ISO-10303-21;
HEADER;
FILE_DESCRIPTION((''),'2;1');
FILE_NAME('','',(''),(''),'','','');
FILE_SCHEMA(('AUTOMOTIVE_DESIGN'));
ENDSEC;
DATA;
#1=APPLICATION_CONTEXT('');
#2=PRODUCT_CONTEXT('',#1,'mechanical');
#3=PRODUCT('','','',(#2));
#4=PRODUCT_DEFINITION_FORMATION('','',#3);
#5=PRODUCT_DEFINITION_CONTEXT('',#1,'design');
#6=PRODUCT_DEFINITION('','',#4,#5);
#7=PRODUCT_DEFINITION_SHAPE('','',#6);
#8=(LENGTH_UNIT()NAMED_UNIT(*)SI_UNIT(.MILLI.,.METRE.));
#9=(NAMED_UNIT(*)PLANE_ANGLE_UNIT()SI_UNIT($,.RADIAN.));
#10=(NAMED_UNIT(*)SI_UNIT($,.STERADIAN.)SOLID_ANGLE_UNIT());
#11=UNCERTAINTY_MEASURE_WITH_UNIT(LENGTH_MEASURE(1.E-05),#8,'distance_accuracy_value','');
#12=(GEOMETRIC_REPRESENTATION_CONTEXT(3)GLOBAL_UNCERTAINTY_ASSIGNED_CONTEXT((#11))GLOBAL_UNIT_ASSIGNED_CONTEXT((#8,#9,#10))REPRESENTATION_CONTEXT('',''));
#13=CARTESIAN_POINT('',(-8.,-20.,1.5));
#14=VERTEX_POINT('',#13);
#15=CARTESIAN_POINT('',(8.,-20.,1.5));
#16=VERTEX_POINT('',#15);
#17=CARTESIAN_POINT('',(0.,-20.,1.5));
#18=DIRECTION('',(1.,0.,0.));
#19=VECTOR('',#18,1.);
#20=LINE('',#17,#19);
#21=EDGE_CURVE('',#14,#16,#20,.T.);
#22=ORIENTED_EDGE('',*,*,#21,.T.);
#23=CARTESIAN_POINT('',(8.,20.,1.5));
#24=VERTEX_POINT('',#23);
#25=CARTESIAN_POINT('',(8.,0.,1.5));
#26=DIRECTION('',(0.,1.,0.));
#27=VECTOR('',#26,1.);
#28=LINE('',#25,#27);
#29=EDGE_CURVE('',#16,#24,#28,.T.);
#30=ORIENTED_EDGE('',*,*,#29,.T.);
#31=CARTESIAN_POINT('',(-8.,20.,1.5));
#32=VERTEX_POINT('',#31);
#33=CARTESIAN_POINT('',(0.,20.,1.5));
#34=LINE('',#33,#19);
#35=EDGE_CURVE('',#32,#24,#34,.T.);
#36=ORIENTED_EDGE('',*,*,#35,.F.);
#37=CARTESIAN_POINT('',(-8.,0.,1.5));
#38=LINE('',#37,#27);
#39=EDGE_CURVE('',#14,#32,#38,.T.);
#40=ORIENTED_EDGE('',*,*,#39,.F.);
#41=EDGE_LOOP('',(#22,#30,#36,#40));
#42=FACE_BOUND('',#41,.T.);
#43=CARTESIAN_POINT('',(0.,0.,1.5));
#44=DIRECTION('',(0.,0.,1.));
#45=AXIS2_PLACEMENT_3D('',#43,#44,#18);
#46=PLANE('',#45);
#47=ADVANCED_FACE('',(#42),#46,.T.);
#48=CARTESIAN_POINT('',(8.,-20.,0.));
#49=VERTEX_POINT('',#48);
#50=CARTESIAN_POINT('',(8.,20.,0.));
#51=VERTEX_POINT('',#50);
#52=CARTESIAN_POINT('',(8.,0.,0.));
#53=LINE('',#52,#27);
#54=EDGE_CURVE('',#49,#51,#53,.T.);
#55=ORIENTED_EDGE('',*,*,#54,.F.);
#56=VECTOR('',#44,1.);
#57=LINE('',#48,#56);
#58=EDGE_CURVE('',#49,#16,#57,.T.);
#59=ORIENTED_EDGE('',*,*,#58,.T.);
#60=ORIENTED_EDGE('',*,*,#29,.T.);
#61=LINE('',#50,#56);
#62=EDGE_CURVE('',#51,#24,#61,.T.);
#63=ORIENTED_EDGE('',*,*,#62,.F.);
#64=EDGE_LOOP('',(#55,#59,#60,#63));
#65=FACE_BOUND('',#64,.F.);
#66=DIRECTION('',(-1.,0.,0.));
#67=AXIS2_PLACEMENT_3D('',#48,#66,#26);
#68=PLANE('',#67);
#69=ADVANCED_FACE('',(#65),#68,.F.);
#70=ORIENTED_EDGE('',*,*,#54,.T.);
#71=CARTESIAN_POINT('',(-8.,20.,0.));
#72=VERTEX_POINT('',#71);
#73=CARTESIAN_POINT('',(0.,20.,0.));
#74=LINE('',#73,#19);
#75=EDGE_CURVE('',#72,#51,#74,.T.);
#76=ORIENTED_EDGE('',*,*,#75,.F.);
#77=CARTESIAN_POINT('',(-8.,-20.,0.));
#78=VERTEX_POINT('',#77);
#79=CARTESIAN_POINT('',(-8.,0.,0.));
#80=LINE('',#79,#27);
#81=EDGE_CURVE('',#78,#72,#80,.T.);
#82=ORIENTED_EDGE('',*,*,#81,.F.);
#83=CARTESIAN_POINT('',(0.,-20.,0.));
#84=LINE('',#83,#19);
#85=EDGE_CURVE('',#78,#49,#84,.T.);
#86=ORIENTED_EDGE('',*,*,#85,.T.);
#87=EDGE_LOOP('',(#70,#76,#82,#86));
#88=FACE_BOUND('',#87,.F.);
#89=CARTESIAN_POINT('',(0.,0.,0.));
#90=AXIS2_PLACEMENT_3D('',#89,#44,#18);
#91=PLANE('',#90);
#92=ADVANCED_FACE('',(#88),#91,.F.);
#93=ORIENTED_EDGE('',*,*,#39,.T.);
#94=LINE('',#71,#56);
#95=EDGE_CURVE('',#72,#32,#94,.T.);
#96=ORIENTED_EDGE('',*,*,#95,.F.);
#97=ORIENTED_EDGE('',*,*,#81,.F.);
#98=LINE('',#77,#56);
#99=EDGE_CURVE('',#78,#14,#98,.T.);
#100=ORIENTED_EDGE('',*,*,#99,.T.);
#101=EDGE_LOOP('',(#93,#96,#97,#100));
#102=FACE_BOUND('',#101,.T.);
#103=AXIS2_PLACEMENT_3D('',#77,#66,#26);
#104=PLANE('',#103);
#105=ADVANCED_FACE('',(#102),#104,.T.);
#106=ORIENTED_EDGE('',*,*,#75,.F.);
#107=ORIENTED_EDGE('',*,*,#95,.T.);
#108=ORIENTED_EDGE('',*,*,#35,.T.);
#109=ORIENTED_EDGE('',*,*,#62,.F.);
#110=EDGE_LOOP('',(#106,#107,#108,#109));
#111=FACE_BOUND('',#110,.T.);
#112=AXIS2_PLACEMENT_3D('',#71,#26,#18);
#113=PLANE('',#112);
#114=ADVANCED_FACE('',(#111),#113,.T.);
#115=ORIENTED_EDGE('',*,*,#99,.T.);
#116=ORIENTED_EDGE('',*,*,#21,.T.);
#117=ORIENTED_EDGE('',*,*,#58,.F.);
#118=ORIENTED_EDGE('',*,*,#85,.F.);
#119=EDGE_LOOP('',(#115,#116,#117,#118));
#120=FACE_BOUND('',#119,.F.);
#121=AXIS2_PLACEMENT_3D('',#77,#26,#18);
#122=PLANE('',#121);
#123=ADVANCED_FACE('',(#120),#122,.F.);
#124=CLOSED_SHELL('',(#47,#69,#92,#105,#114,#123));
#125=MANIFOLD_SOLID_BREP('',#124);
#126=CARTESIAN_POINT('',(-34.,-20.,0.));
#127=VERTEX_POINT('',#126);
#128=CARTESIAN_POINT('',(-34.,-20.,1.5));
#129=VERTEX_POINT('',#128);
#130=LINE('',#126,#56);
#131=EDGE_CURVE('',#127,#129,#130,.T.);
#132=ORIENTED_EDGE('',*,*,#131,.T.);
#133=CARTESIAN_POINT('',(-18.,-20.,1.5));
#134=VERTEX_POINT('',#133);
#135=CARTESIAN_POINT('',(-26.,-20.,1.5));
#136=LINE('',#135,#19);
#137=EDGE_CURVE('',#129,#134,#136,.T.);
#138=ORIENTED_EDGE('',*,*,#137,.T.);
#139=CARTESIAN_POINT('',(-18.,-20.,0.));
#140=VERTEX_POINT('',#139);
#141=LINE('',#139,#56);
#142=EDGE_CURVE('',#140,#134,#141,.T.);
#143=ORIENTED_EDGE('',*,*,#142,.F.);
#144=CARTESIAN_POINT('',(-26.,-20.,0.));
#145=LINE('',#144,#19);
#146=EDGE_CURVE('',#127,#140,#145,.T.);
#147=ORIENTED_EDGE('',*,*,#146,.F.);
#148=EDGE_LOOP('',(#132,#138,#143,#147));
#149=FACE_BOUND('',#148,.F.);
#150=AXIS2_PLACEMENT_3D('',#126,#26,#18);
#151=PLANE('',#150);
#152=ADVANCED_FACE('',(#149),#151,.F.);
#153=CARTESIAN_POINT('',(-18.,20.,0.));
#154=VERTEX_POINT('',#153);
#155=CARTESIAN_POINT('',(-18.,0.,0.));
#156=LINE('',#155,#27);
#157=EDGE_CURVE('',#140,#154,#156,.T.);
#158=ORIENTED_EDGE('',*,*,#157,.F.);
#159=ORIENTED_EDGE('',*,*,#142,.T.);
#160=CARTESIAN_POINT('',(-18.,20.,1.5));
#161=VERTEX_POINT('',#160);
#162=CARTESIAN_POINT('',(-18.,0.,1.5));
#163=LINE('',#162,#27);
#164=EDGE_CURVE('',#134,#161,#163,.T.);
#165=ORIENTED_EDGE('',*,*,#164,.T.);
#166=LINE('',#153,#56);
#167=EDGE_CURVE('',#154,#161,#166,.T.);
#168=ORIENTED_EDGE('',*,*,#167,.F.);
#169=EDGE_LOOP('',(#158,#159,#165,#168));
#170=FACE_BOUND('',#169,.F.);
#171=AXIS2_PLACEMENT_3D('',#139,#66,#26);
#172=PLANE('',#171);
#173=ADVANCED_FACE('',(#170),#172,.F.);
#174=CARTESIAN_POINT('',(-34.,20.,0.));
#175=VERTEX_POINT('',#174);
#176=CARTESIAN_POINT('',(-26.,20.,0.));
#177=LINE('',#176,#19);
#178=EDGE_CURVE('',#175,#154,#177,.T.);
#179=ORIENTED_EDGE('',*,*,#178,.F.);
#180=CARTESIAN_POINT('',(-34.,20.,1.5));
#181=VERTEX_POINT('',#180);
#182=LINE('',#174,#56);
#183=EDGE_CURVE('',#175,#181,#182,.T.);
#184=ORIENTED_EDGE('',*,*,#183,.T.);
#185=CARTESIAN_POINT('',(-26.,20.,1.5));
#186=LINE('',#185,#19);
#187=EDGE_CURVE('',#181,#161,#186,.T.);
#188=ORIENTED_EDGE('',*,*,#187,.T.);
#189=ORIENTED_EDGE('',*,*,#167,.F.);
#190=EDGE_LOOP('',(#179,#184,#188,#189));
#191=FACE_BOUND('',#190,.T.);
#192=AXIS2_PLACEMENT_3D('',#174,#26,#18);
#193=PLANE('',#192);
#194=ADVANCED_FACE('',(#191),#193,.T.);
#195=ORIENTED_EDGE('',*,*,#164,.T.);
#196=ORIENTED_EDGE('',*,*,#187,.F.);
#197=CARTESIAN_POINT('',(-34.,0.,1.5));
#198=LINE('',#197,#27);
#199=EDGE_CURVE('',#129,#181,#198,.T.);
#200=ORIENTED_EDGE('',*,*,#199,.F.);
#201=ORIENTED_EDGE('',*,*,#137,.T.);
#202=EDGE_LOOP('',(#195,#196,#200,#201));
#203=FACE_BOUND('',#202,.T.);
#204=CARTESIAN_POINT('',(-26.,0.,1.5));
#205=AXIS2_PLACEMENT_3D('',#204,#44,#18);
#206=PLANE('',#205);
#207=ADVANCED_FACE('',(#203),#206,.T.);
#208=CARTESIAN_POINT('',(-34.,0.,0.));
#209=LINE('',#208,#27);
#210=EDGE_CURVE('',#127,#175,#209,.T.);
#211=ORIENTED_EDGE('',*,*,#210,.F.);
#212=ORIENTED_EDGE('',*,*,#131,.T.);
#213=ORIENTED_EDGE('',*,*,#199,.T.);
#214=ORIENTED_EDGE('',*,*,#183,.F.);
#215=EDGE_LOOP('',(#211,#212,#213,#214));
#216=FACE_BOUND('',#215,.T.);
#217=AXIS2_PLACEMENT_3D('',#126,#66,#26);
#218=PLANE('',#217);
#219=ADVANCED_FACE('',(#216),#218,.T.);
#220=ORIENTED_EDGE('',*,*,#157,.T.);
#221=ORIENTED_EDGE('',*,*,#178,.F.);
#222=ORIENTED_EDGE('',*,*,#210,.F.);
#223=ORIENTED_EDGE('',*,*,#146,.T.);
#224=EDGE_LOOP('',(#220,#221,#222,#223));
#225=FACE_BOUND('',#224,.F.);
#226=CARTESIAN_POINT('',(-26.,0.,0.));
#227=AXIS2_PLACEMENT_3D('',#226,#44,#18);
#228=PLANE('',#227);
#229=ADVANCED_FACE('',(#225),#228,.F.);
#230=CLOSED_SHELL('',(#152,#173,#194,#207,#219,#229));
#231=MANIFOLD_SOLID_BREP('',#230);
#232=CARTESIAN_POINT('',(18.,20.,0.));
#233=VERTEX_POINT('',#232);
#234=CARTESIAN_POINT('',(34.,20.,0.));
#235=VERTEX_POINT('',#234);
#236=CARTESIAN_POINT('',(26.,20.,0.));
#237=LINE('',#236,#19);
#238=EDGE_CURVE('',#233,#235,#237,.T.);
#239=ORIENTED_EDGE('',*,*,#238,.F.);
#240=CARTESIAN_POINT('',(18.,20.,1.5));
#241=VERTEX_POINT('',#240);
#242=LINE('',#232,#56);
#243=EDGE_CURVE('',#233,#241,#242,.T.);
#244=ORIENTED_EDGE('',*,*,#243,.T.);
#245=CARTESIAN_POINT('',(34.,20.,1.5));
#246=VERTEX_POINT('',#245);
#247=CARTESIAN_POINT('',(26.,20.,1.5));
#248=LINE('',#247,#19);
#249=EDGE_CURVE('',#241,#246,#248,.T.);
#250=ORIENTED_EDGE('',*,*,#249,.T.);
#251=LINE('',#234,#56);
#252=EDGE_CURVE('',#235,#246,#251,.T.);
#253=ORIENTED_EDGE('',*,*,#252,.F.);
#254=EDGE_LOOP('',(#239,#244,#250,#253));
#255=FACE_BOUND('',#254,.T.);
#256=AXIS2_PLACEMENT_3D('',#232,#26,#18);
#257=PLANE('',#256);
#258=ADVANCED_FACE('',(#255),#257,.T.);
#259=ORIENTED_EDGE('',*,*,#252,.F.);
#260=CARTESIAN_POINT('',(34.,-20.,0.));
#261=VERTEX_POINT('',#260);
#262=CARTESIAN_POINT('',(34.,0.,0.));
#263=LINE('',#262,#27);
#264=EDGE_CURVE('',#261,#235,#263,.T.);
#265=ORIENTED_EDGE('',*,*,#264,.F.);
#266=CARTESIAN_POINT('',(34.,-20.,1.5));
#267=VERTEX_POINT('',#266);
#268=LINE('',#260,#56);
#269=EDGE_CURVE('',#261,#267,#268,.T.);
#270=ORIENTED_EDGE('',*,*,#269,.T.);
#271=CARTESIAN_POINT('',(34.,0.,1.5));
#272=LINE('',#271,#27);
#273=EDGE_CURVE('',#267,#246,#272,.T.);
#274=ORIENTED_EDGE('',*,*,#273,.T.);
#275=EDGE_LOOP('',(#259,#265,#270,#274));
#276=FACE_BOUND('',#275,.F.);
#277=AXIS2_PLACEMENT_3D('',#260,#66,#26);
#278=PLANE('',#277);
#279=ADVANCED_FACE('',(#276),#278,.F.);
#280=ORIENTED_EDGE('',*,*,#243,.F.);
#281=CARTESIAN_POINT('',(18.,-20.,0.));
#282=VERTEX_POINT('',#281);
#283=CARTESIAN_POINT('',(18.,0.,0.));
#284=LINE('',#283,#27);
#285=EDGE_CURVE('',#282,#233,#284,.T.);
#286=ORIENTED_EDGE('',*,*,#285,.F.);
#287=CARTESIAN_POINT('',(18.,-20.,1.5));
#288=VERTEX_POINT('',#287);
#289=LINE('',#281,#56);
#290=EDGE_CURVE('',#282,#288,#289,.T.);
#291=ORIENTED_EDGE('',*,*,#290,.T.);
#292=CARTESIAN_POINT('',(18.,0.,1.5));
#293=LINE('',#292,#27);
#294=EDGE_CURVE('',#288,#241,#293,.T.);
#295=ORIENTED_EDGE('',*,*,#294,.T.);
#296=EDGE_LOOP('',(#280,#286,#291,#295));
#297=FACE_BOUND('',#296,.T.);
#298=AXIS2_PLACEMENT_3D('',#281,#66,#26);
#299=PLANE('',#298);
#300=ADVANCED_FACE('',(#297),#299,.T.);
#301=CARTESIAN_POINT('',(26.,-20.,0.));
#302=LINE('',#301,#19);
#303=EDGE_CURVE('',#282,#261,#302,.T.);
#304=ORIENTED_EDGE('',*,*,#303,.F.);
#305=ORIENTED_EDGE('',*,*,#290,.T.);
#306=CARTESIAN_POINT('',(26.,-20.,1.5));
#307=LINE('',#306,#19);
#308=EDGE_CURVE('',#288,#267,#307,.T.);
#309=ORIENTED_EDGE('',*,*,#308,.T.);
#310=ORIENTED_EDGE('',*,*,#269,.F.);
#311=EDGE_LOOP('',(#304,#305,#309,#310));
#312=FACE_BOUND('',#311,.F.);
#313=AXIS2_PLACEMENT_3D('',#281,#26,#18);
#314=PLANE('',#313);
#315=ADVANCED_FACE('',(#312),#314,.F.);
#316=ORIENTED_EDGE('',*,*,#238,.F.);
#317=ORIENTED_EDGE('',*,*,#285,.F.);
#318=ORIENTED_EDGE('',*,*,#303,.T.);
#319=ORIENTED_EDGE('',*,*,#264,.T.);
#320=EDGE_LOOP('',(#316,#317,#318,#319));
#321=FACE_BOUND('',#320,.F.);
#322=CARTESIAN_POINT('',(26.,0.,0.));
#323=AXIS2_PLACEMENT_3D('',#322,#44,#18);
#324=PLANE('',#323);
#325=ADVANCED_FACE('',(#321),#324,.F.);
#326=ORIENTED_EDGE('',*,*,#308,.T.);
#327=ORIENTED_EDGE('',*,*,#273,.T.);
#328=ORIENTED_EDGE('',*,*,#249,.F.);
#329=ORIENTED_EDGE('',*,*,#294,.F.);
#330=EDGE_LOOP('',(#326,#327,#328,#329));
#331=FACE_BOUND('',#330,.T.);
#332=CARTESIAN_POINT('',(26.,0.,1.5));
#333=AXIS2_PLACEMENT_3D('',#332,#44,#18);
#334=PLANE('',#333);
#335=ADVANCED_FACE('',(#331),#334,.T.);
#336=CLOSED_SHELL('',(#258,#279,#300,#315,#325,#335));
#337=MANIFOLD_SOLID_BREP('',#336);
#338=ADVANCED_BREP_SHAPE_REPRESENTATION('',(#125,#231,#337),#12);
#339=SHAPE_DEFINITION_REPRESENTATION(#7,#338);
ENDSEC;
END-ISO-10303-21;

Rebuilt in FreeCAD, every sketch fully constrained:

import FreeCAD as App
import Part
import Sketcher
Q = App.Units.Quantity

doc = App.newDocument("Part")
body = doc.addObject("PartDesign::Body", "Body")

# Sketch on XY plane
sketch1 = body.newObject("Sketcher::SketchObject", "Sketch")
sketch1.AttachmentSupport = (doc.getObject("XY_Plane"), [""])
sketch1.MapMode = "FlatFace"
sketch1.addGeometry(Part.LineSegment(App.Vector(-34, 20, 0), App.Vector(-34, -20, 0)), False)
sketch1.addGeometry(Part.LineSegment(App.Vector(-34, -20, 0), App.Vector(-18, -20, 0)), False)
sketch1.addGeometry(Part.LineSegment(App.Vector(-18, -20, 0), App.Vector(-18, 20, 0)), False)
sketch1.addGeometry(Part.LineSegment(App.Vector(-18, 20, 0), App.Vector(-34, 20, 0)), False)
sketch1.addConstraint(Sketcher.Constraint("Coincident", 0, 2, 1, 1))
sketch1.addConstraint(Sketcher.Constraint("Coincident", 1, 2, 2, 1))
sketch1.addConstraint(Sketcher.Constraint("Coincident", 2, 2, 3, 1))
sketch1.addConstraint(Sketcher.Constraint("Coincident", 3, 2, 0, 1))
sketch1.addConstraint(Sketcher.Constraint("Vertical", 0))
sketch1.addConstraint(Sketcher.Constraint("Horizontal", 1))
sketch1.addConstraint(Sketcher.Constraint("Vertical", 2))
sketch1.addConstraint(Sketcher.Constraint("Horizontal", 3))
sketch1.addConstraint(Sketcher.Constraint("DistanceX", 1, 1, 1, 2, Q("16 mm")))
sketch1.addConstraint(Sketcher.Constraint("DistanceY", 0, 2, 0, 1, Q("40 mm")))
sketch1.addConstraint(Sketcher.Constraint("DistanceX", 0, 2, -1, 1, Q("34 mm")))
sketch1.addConstraint(Sketcher.Constraint("DistanceY", 0, 2, -1, 1, Q("20 mm")))
pad1 = body.newObject("PartDesign::Pad", "Pad")
pad1.Profile = sketch1
pad1.Length = 1.5
body2 = doc.addObject("PartDesign::Body", "Body001")

# Sketch on XY plane
sketch2 = body2.newObject("Sketcher::SketchObject", "Sketch001")
sketch2.AttachmentSupport = (doc.getObject("XY_Plane001"), [""])
sketch2.MapMode = "FlatFace"
sketch2.addGeometry(Part.LineSegment(App.Vector(-8, 20, 0), App.Vector(-8, -20, 0)), False)
sketch2.addGeometry(Part.LineSegment(App.Vector(-8, -20, 0), App.Vector(8, -20, 0)), False)
sketch2.addGeometry(Part.LineSegment(App.Vector(8, -20, 0), App.Vector(8, 20, 0)), False)
sketch2.addGeometry(Part.LineSegment(App.Vector(8, 20, 0), App.Vector(-8, 20, 0)), False)
sketch2.addConstraint(Sketcher.Constraint("Coincident", 0, 2, 1, 1))
sketch2.addConstraint(Sketcher.Constraint("Coincident", 1, 2, 2, 1))
sketch2.addConstraint(Sketcher.Constraint("Coincident", 2, 2, 3, 1))
sketch2.addConstraint(Sketcher.Constraint("Coincident", 3, 2, 0, 1))
sketch2.addConstraint(Sketcher.Constraint("Vertical", 0))
sketch2.addConstraint(Sketcher.Constraint("Horizontal", 1))
sketch2.addConstraint(Sketcher.Constraint("Vertical", 2))
sketch2.addConstraint(Sketcher.Constraint("Horizontal", 3))
sketch2.addConstraint(Sketcher.Constraint("Symmetric", 0, 2, 2, 2, -1, 1))
sketch2.addConstraint(Sketcher.Constraint("DistanceX", 1, 1, 1, 2, Q("16 mm")))
sketch2.addConstraint(Sketcher.Constraint("DistanceY", 0, 2, 0, 1, Q("40 mm")))
pad2 = body2.newObject("PartDesign::Pad", "Pad001")
pad2.Profile = sketch2
pad2.Length = 1.5
body3 = doc.addObject("PartDesign::Body", "Body002")

# Sketch on XY plane
sketch3 = body3.newObject("Sketcher::SketchObject", "Sketch002")
sketch3.AttachmentSupport = (doc.getObject("XY_Plane002"), [""])
sketch3.MapMode = "FlatFace"
sketch3.addGeometry(Part.LineSegment(App.Vector(18, 20, 0), App.Vector(18, -20, 0)), False)
sketch3.addGeometry(Part.LineSegment(App.Vector(18, -20, 0), App.Vector(34, -20, 0)), False)
sketch3.addGeometry(Part.LineSegment(App.Vector(34, -20, 0), App.Vector(34, 20, 0)), False)
sketch3.addGeometry(Part.LineSegment(App.Vector(34, 20, 0), App.Vector(18, 20, 0)), False)
sketch3.addConstraint(Sketcher.Constraint("Coincident", 0, 2, 1, 1))
sketch3.addConstraint(Sketcher.Constraint("Coincident", 1, 2, 2, 1))
sketch3.addConstraint(Sketcher.Constraint("Coincident", 2, 2, 3, 1))
sketch3.addConstraint(Sketcher.Constraint("Coincident", 3, 2, 0, 1))
sketch3.addConstraint(Sketcher.Constraint("Vertical", 0))
sketch3.addConstraint(Sketcher.Constraint("Horizontal", 1))
sketch3.addConstraint(Sketcher.Constraint("Vertical", 2))
sketch3.addConstraint(Sketcher.Constraint("Horizontal", 3))
sketch3.addConstraint(Sketcher.Constraint("DistanceX", 1, 1, 1, 2, Q("16 mm")))
sketch3.addConstraint(Sketcher.Constraint("DistanceY", 0, 2, 0, 1, Q("40 mm")))
sketch3.addConstraint(Sketcher.Constraint("DistanceX", -1, 1, 0, 2, Q("18 mm")))
sketch3.addConstraint(Sketcher.Constraint("DistanceY", 0, 2, -1, 1, Q("20 mm")))
pad3 = body3.newObject("PartDesign::Pad", "Pad002")
pad3.Profile = sketch3
pad3.Length = 1.5

doc.recompute()
